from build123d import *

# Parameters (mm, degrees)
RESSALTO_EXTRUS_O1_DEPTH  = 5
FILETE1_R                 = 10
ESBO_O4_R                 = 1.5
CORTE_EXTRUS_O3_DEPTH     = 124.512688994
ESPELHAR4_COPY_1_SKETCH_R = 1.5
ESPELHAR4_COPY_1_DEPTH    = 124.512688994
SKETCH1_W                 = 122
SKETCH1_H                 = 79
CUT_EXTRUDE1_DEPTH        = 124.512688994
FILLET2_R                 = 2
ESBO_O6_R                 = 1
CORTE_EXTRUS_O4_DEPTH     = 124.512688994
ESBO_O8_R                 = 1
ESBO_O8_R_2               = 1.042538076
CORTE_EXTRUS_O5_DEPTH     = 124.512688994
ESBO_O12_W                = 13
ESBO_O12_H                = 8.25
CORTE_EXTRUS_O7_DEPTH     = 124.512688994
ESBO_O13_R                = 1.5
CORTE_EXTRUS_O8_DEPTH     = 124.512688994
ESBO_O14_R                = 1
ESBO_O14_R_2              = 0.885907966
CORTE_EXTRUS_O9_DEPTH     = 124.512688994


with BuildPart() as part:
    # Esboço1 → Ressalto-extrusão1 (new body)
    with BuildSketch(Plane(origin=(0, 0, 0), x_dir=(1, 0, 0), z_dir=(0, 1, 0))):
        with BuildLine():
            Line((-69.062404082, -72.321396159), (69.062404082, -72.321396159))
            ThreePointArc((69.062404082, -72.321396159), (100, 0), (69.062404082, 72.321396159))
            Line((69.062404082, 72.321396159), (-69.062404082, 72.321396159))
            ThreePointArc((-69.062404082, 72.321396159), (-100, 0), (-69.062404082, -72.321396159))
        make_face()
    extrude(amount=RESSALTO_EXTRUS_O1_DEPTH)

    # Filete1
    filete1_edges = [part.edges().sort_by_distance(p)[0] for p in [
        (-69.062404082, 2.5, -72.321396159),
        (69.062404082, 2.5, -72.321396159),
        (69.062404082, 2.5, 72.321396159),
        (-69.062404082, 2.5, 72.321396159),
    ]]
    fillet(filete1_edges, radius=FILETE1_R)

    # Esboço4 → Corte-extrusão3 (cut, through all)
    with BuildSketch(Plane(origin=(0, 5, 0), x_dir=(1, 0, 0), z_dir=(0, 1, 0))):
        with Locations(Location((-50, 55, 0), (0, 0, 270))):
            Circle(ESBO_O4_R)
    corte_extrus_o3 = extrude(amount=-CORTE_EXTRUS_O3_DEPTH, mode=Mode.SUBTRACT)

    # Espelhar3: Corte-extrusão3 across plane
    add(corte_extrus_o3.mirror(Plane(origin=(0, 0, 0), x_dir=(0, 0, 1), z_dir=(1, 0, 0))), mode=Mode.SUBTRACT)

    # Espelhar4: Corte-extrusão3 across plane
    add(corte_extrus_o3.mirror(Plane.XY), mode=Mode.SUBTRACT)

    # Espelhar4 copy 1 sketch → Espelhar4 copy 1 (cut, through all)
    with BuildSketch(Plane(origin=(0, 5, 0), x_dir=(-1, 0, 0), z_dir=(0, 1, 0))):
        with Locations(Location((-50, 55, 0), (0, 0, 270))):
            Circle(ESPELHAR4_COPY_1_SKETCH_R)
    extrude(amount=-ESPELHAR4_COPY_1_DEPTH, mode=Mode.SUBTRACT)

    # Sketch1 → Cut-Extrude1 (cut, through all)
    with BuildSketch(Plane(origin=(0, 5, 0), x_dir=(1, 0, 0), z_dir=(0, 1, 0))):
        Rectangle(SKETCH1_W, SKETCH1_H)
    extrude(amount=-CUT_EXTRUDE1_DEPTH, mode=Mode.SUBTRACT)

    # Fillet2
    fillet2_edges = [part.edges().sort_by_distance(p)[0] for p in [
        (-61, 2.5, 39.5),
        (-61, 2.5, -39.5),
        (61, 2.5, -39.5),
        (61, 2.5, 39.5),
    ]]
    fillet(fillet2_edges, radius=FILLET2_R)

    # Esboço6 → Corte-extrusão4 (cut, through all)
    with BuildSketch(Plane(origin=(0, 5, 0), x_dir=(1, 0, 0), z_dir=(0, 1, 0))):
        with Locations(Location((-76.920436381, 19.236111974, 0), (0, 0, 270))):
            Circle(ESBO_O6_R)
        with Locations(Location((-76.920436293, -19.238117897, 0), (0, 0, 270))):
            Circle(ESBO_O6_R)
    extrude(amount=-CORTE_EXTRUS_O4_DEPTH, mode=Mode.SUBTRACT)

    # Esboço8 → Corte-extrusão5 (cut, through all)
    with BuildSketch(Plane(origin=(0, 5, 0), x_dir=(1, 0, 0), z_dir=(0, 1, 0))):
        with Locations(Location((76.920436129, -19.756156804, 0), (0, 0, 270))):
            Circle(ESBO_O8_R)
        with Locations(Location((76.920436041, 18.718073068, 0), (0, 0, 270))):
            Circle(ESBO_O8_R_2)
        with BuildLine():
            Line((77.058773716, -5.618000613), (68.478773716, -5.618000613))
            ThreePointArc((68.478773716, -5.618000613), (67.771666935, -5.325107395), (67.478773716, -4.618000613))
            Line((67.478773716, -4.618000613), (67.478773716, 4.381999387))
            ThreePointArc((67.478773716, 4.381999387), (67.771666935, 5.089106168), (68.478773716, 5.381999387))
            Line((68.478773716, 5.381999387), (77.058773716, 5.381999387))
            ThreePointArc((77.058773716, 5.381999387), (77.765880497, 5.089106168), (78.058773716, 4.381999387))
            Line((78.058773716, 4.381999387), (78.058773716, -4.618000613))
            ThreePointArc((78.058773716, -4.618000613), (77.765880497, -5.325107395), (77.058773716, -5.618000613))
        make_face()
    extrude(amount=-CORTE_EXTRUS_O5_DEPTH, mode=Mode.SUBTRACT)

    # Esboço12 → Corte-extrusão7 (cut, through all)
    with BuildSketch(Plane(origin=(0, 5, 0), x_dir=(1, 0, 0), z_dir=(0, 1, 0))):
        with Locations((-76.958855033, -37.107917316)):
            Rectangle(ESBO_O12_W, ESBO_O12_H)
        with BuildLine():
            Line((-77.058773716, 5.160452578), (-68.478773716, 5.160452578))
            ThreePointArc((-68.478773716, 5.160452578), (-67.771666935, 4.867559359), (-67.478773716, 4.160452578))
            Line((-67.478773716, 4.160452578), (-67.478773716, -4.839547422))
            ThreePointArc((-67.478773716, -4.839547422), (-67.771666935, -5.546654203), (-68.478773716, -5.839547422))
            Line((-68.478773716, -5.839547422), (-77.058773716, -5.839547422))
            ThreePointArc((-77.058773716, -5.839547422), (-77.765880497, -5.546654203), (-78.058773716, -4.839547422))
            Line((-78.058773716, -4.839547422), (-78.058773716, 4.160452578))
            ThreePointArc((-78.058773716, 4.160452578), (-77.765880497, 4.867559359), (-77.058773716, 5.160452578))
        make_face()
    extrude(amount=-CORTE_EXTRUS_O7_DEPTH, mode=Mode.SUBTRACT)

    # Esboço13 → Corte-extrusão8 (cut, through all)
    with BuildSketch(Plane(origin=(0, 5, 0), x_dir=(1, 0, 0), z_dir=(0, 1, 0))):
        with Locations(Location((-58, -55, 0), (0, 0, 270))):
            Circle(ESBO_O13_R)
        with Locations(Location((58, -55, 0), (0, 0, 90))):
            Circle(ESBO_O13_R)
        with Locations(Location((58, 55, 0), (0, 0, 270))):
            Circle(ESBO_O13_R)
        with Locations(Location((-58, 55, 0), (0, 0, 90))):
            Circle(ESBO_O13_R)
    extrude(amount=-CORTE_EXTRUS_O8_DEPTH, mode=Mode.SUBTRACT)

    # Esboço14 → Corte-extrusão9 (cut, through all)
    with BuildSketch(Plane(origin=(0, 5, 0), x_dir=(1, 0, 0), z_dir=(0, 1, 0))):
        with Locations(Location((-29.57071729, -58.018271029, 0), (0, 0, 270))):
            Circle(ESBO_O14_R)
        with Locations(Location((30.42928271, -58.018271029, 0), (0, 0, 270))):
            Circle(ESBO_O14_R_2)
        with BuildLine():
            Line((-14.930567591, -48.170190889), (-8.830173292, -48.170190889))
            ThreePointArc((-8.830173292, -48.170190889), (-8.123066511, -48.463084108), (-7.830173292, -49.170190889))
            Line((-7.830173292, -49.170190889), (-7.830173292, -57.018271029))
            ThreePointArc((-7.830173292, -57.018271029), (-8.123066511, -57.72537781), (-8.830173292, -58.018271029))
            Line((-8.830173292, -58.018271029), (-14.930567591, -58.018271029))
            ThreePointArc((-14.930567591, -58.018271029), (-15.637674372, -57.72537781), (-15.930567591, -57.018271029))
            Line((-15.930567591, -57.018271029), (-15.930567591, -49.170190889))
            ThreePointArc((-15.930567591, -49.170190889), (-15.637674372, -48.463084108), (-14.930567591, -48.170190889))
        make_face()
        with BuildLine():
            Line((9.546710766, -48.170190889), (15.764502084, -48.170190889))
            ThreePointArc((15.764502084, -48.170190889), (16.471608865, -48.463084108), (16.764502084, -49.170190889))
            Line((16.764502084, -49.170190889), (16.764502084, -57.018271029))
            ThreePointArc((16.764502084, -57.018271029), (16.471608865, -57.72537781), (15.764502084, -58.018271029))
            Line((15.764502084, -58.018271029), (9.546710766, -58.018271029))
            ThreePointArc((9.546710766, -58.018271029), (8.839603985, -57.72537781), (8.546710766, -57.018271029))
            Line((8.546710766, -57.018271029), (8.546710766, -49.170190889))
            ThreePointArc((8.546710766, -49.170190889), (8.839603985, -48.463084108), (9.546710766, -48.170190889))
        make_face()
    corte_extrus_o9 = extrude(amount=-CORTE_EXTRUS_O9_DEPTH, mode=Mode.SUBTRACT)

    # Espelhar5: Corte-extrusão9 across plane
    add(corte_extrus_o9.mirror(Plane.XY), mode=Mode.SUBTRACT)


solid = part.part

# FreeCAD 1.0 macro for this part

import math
import FreeCAD as App
import Part
import Sketcher
Q = App.Units.Quantity


def edges_at(feature, points):
    """Names of the edges that pass closest to the given points."""
    edges = feature.Shape.Edges
    near = lambda p: min(range(len(edges)), key=lambda i: edges[i].distToShape(Part.Vertex(*p))[0])
    return sorted({f"Edge{near(p) + 1}" for p in points})

doc = App.newDocument("Part")
body = doc.addObject("PartDesign::Body", "Body")

# Sketch on XZ plane
sketch1 = doc.addObject("Sketcher::SketchObject", "Sketch")
body.addObject(sketch1)
sketch1.AttachmentSupport = (doc.XZ_Plane, [""])
sketch1.MapMode = "FlatFace"
sketch1.addGeometry([
    Part.LineSegment(App.Vector(-69, 72, 0), App.Vector(69, 72, 0)),
    Part.ArcOfCircle(Part.Circle(App.Vector(0, 0, 0), App.Vector(0, 0, 1), 100), math.radians(-46), math.radians(46)),
    Part.LineSegment(App.Vector(69, -72, 0), App.Vector(-69, -72, 0)),
    Part.ArcOfCircle(Part.Circle(App.Vector(0, 0, 0), App.Vector(0, 0, 1), 100), math.radians(134), math.radians(226)),
], False)
sketch1.addConstraint([
    Sketcher.Constraint("Coincident", 0, 2, 1, 2),
    Sketcher.Constraint("Coincident", 1, 1, 2, 1),
    Sketcher.Constraint("Coincident", 2, 2, 3, 2),
    Sketcher.Constraint("Coincident", 3, 1, 0, 1),
    Sketcher.Constraint("Horizontal", 0),
    Sketcher.Constraint("Horizontal", 2),
    Sketcher.Constraint("Coincident", 1, 3, -1, 1),
    Sketcher.Constraint("Coincident", 3, 3, -1, 1),
    Sketcher.Constraint("Equal", 1, 3),
    Sketcher.Constraint("Vertical", 0, 2, 1, 1),
    Sketcher.Constraint("Radius", 1, Q("100 mm")),
    Sketcher.Constraint("DistanceX", 0, 1, 0, 2, Q("138.124808 mm")),
])
pad1 = doc.addObject("PartDesign::Pad", "Pad")
body.addObject(pad1)
pad1.Profile = sketch1
pad1.Length = 5
pad1.Reversed = True
doc.recompute()

fillet = doc.addObject("PartDesign::Fillet", "Fillet")
body.addObject(fillet)
fillet.Base = (pad1, edges_at(pad1, [
    (-69.062, 2.5, -72.321),
    (69.062, 2.5, -72.321),
    (69.062, 2.5, 72.321),
    (-69.062, 2.5, 72.321),
]))
fillet.Radius = 10

# Sketch on XZ plane
sketch2 = doc.addObject("Sketcher::SketchObject", "Sketch001")
body.addObject(sketch2)
sketch2.AttachmentSupport = (doc.XZ_Plane, [""])
sketch2.MapMode = "FlatFace"
sketch2.AttachmentOffset = App.Placement(App.Vector(0, 0, -5), App.Rotation())
sketch2.addGeometry(Part.Circle(App.Vector(-50, -55, 0), App.Vector(0, 0, 1), 1.5), False)
sketch2.addConstraint([
    Sketcher.Constraint("Diameter", 0, Q("3 mm")),
    Sketcher.Constraint("DistanceX", 0, 3, -1, 1, Q("50 mm")),
    Sketcher.Constraint("DistanceY", 0, 3, -1, 1, Q("55 mm")),
])
pocket1 = doc.addObject("PartDesign::Pocket", "Pocket")
body.addObject(pocket1)
pocket1.Profile = sketch2
pocket1.Type = "ThroughAll"
pocket1.Reversed = True
doc.recompute()

mirrored = doc.addObject("PartDesign::Mirrored", "Mirrored")
body.addObject(mirrored)
mirrored.Originals = [pocket1]
mirrored.MirrorPlane = (doc.YZ_Plane, [""])
body.Tip = mirrored
doc.recompute()

mirrored2 = doc.addObject("PartDesign::Mirrored", "Mirrored001")
body.addObject(mirrored2)
mirrored2.Originals = [pocket1]
mirrored2.MirrorPlane = (doc.XY_Plane, [""])
body.Tip = mirrored2

# Sketch on XZ plane
sketch3 = doc.addObject("Sketcher::SketchObject", "Sketch002")
body.addObject(sketch3)
sketch3.AttachmentSupport = (doc.XZ_Plane, [""])
sketch3.MapMode = "FlatFace"
sketch3.AttachmentOffset = App.Placement(App.Vector(0, 0, -5), App.Rotation())
sketch3.addGeometry(Part.Circle(App.Vector(50, 55, 0), App.Vector(0, 0, 1), 1.5), False)
sketch3.addConstraint([
    Sketcher.Constraint("Diameter", 0, Q("3 mm")),
    Sketcher.Constraint("DistanceX", -1, 1, 0, 3, Q("50 mm")),
    Sketcher.Constraint("DistanceY", -1, 1, 0, 3, Q("55 mm")),
])
pocket2 = doc.addObject("PartDesign::Pocket", "Pocket001")
body.addObject(pocket2)
pocket2.Profile = sketch3
pocket2.Type = "ThroughAll"
pocket2.Reversed = True

# Sketch on XZ plane
sketch4 = doc.addObject("Sketcher::SketchObject", "Sketch003")
body.addObject(sketch4)
sketch4.AttachmentSupport = (doc.XZ_Plane, [""])
sketch4.MapMode = "FlatFace"
sketch4.AttachmentOffset = App.Placement(App.Vector(0, 0, -5), App.Rotation())
sketch4.addGeometry([
    Part.LineSegment(App.Vector(-61, -40, 0), App.Vector(-61, 40, 0)),
    Part.LineSegment(App.Vector(-61, 40, 0), App.Vector(61, 40, 0)),
    Part.LineSegment(App.Vector(61, 40, 0), App.Vector(61, -40, 0)),
    Part.LineSegment(App.Vector(61, -40, 0), App.Vector(-61, -40, 0)),
], False)
sketch4.addConstraint([
    Sketcher.Constraint("Coincident", 0, 2, 1, 1),
    Sketcher.Constraint("Coincident", 1, 2, 2, 1),
    Sketcher.Constraint("Coincident", 2, 2, 3, 1),
    Sketcher.Constraint("Coincident", 3, 2, 0, 1),
    Sketcher.Constraint("Vertical", 0),
    Sketcher.Constraint("Horizontal", 1),
    Sketcher.Constraint("Vertical", 2),
    Sketcher.Constraint("Horizontal", 3),
    Sketcher.Constraint("Symmetric", 0, 2, 2, 2, -1, 1),
    Sketcher.Constraint("DistanceX", 1, 1, 1, 2, Q("122 mm")),
    Sketcher.Constraint("DistanceY", 0, 1, 0, 2, Q("79 mm")),
])
pocket3 = doc.addObject("PartDesign::Pocket", "Pocket002")
body.addObject(pocket3)
pocket3.Profile = sketch4
pocket3.Type = "ThroughAll"
pocket3.Reversed = True
doc.recompute()

fillet2 = doc.addObject("PartDesign::Fillet", "Fillet001")
body.addObject(fillet2)
fillet2.Base = (pocket3, edges_at(pocket3, [
    (-61, 2.5, 39.5),
    (-61, 2.5, -39.5),
    (61, 2.5, -39.5),
    (61, 2.5, 39.5),
]))
fillet2.Radius = 2

# Sketch on XZ plane
sketch5 = doc.addObject("Sketcher::SketchObject", "Sketch004")
body.addObject(sketch5)
sketch5.AttachmentSupport = (doc.XZ_Plane, [""])
sketch5.MapMode = "FlatFace"
sketch5.AttachmentOffset = App.Placement(App.Vector(0, 0, -5), App.Rotation())
sketch5.addGeometry([
    Part.Circle(App.Vector(-76.9, -19.2, 0), App.Vector(0, 0, 1), 1),
    Part.Circle(App.Vector(-76.9, 19.2, 0), App.Vector(0, 0, 1), 1),
], False)
sketch5.addConstraint([
    Sketcher.Constraint("Equal", 0, 1),
    Sketcher.Constraint("Vertical", 0, 3, 1, 3),
    Sketcher.Constraint("Diameter", 0, Q("2 mm")),
    Sketcher.Constraint("DistanceY", 0, 3, -1, 1, Q("19.236112 mm")),
    Sketcher.Constraint("DistanceY", 0, 3, 1, 3, Q("38.47423 mm")),
    Sketcher.Constraint("DistanceX", 0, 3, -1, 1, Q("76.920436 mm")),
])
pocket4 = doc.addObject("PartDesign::Pocket", "Pocket003")
body.addObject(pocket4)
pocket4.Profile = sketch5
pocket4.Type = "ThroughAll"
pocket4.Reversed = True

# Sketch on XZ plane
sketch6 = doc.addObject("Sketcher::SketchObject", "Sketch005")
body.addObject(sketch6)
sketch6.AttachmentSupport = (doc.XZ_Plane, [""])
sketch6.MapMode = "FlatFace"
sketch6.AttachmentOffset = App.Placement(App.Vector(0, 0, -5), App.Rotation())
sketch6.addGeometry([
    Part.Circle(App.Vector(76.9, 19.8, 0), App.Vector(0, 0, 1), 1),  # 0
    Part.Circle(App.Vector(76.9, -18.7, 0), App.Vector(0, 0, 1), 1),  # 1
    Part.LineSegment(App.Vector(68.5, 5.6, 0), App.Vector(77.1, 5.6, 0)),  # 2
    Part.ArcOfCircle(Part.Circle(App.Vector(77.1, 4.6, 0), App.Vector(0, 0, 1), 1), math.radians(0), math.radians(90)),  # 3
    Part.LineSegment(App.Vector(78.1, 4.6, 0), App.Vector(78.1, -4.4, 0)),  # 4
    Part.ArcOfCircle(Part.Circle(App.Vector(77.1, -4.4, 0), App.Vector(0, 0, 1), 1), math.radians(-90), math.radians(0)),  # 5
    Part.LineSegment(App.Vector(77.1, -5.4, 0), App.Vector(68.5, -5.4, 0)),  # 6
    Part.ArcOfCircle(Part.Circle(App.Vector(68.5, -4.4, 0), App.Vector(0, 0, 1), 1), math.radians(-180), math.radians(-90)),  # 7
    Part.LineSegment(App.Vector(67.5, -4.4, 0), App.Vector(67.5, 4.6, 0)),  # 8
    Part.ArcOfCircle(Part.Circle(App.Vector(68.5, 4.6, 0), App.Vector(0, 0, 1), 1), math.radians(90), math.radians(180)),  # 9
], False)
sketch6.addConstraint([
    Sketcher.Constraint("Tangent", 2, 2, 3, 2),
    Sketcher.Constraint("Tangent", 3, 1, 4, 1),
    Sketcher.Constraint("Tangent", 4, 2, 5, 2),
    Sketcher.Constraint("Tangent", 5, 1, 6, 1),
    Sketcher.Constraint("Tangent", 6, 2, 7, 2),
    Sketcher.Constraint("Tangent", 7, 1, 8, 1),
    Sketcher.Constraint("Tangent", 8, 2, 9, 2),
    Sketcher.Constraint("Tangent", 9, 1, 2, 1),
    Sketcher.Constraint("Horizontal", 2),
    Sketcher.Constraint("Vertical", 4),
    Sketcher.Constraint("Horizontal", 6),
    Sketcher.Constraint("Vertical", 8),
    Sketcher.Constraint("Equal", 0, 3),
    Sketcher.Constraint("Equal", 3, 5),
    Sketcher.Constraint("Equal", 5, 7),
    Sketcher.Constraint("Equal", 7, 9),
    Sketcher.Constraint("Vertical", 0, 3, 1, 3),
    Sketcher.Constraint("Diameter", 0, Q("2 mm")),
    Sketcher.Constraint("DistanceY", 4, 2, 4, 1, Q("9 mm")),
    Sketcher.Constraint("DistanceX", 2, 1, 2, 2, Q("8.58 mm")),
    Sketcher.Constraint("Diameter", 1, Q("2.085076 mm")),
    Sketcher.Constraint("DistanceY", -1, 1, 3, 3, Q("4.618001 mm")),
    Sketcher.Constraint("DistanceY", 1, 3, 0, 3, Q("38.47423 mm")),
    Sketcher.Constraint("DistanceX", -1, 1, 0, 3, Q("76.920436 mm")),
    Sketcher.Constraint("DistanceY", -1, 1, 0, 3, Q("19.756157 mm")),
    Sketcher.Constraint("DistanceX", -1, 1, 3, 3, Q("77.058774 mm")),
])
pocket5 = doc.addObject("PartDesign::Pocket", "Pocket004")
body.addObject(pocket5)
pocket5.Profile = sketch6
pocket5.Type = "ThroughAll"
pocket5.Reversed = True

# Sketch on XZ plane
sketch7 = doc.addObject("Sketcher::SketchObject", "Sketch006")
body.addObject(sketch7)
sketch7.AttachmentSupport = (doc.XZ_Plane, [""])
sketch7.MapMode = "FlatFace"
sketch7.AttachmentOffset = App.Placement(App.Vector(0, 0, -5), App.Rotation())
sketch7.addGeometry([
    Part.LineSegment(App.Vector(-83.5, 33, 0), App.Vector(-83.5, 41.2, 0)),  # 0
    Part.LineSegment(App.Vector(-83.5, 41.2, 0), App.Vector(-70.5, 41.2, 0)),  # 1
    Part.LineSegment(App.Vector(-70.5, 41.2, 0), App.Vector(-70.5, 33, 0)),  # 2
    Part.LineSegment(App.Vector(-70.5, 33, 0), App.Vector(-83.5, 33, 0)),  # 3
    Part.LineSegment(App.Vector(-68.5, -5.2, 0), App.Vector(-77.1, -5.2, 0)),  # 4
    Part.ArcOfCircle(Part.Circle(App.Vector(-77.1, -4.2, 0), App.Vector(0, 0, 1), 1), math.radians(-180), math.radians(-90)),  # 5
    Part.LineSegment(App.Vector(-78.1, -4.2, 0), App.Vector(-78.1, 4.8, 0)),  # 6
    Part.ArcOfCircle(Part.Circle(App.Vector(-77.1, 4.8, 0), App.Vector(0, 0, 1), 1), math.radians(90), math.radians(180)),  # 7
    Part.LineSegment(App.Vector(-77.1, 5.8, 0), App.Vector(-68.5, 5.8, 0)),  # 8
    Part.ArcOfCircle(Part.Circle(App.Vector(-68.5, 4.8, 0), App.Vector(0, 0, 1), 1), math.radians(0), math.radians(90)),  # 9
    Part.LineSegment(App.Vector(-67.5, 4.8, 0), App.Vector(-67.5, -4.2, 0)),  # 10
    Part.ArcOfCircle(Part.Circle(App.Vector(-68.5, -4.2, 0), App.Vector(0, 0, 1), 1), math.radians(-90), math.radians(0)),  # 11
], False)
sketch7.addConstraint([
    Sketcher.Constraint("Coincident", 0, 2, 1, 1),
    Sketcher.Constraint("Coincident", 1, 2, 2, 1),
    Sketcher.Constraint("Coincident", 2, 2, 3, 1),
    Sketcher.Constraint("Coincident", 3, 2, 0, 1),
    Sketcher.Constraint("Tangent", 4, 2, 5, 2),
    Sketcher.Constraint("Tangent", 5, 1, 6, 1),
    Sketcher.Constraint("Tangent", 6, 2, 7, 2),
    Sketcher.Constraint("Tangent", 7, 1, 8, 1),
    Sketcher.Constraint("Tangent", 8, 2, 9, 2),
    Sketcher.Constraint("Tangent", 9, 1, 10, 1),
    Sketcher.Constraint("Tangent", 10, 2, 11, 2),
    Sketcher.Constraint("Tangent", 11, 1, 4, 1),
    Sketcher.Constraint("Vertical", 0),
    Sketcher.Constraint("Horizontal", 1),
    Sketcher.Constraint("Vertical", 2),
    Sketcher.Constraint("Horizontal", 3),
    Sketcher.Constraint("Horizontal", 4),
    Sketcher.Constraint("Vertical", 6),
    Sketcher.Constraint("Horizontal", 8),
    Sketcher.Constraint("Vertical", 10),
    Sketcher.Constraint("Equal", 5, 7),
    Sketcher.Constraint("Equal", 7, 9),
    Sketcher.Constraint("Equal", 9, 11),
    Sketcher.Constraint("Radius", 5, Q("1 mm")),
    Sketcher.Constraint("DistanceX", 1, 1, 1, 2, Q("13 mm")),
    Sketcher.Constraint("DistanceY", 6, 1, 6, 2, Q("9 mm")),
    Sketcher.Constraint("DistanceX", 4, 2, 4, 1, Q("8.58 mm")),
    Sketcher.Constraint("DistanceY", 0, 1, 0, 2, Q("8.25 mm")),
    Sketcher.Constraint("DistanceX", 0, 2, 7, 3, Q("6.400081 mm")),
    Sketcher.Constraint("DistanceY", 7, 3, 0, 2, Q("36.39337 mm")),
    Sketcher.Constraint("DistanceX", 5, 3, -1, 1, Q("77.058774 mm")),
    Sketcher.Constraint("DistanceY", 5, 3, -1, 1, Q("4.160453 mm")),
])
pocket6 = doc.addObject("PartDesign::Pocket", "Pocket005")
body.addObject(pocket6)
pocket6.Profile = sketch7
pocket6.Type = "ThroughAll"
pocket6.Reversed = True

# Sketch on XZ plane
sketch8 = doc.addObject("Sketcher::SketchObject", "Sketch007")
body.addObject(sketch8)
sketch8.AttachmentSupport = (doc.XZ_Plane, [""])
sketch8.MapMode = "FlatFace"
sketch8.AttachmentOffset = App.Placement(App.Vector(0, 0, -5), App.Rotation())
sketch8.addGeometry([
    Part.Circle(App.Vector(-58, 55, 0), App.Vector(0, 0, 1), 1.5),
    Part.Circle(App.Vector(58, 55, 0), App.Vector(0, 0, 1), 1.5),
    Part.Circle(App.Vector(58, -55, 0), App.Vector(0, 0, 1), 1.5),
    Part.Circle(App.Vector(-58, -55, 0), App.Vector(0, 0, 1), 1.5),
], False)
sketch8.addConstraint([
    Sketcher.Constraint("Equal", 0, 1),
    Sketcher.Constraint("Equal", 1, 2),
    Sketcher.Constraint("Equal", 2, 3),
    Sketcher.Constraint("Symmetric", 0, 3, 2, 3, -1, 1),
    Sketcher.Constraint("Symmetric", 1, 3, 3, 3, -1, 1),
    Sketcher.Constraint("Symmetric", 0, 3, 1, 3, -2),
    Sketcher.Constraint("Diameter", 0, Q("3 mm")),
    Sketcher.Constraint("DistanceX", 0, 3, -1, 1, Q("58 mm")),
    Sketcher.Constraint("DistanceY", -1, 1, 0, 3, Q("55 mm")),
])
pocket7 = doc.addObject("PartDesign::Pocket", "Pocket006")
body.addObject(pocket7)
pocket7.Profile = sketch8
pocket7.Type = "ThroughAll"
pocket7.Reversed = True

# Sketch on XZ plane
sketch9 = doc.addObject("Sketcher::SketchObject", "Sketch008")
body.addObject(sketch9)
sketch9.AttachmentSupport = (doc.XZ_Plane, [""])
sketch9.MapMode = "FlatFace"
sketch9.AttachmentOffset = App.Placement(App.Vector(0, 0, -5), App.Rotation())
sketch9.addGeometry([
    Part.Circle(App.Vector(-29.6, 58, 0), App.Vector(0, 0, 1), 1),  # 0
    Part.Circle(App.Vector(30.4, 58, 0), App.Vector(0, 0, 1), 0.9),  # 1
    Part.LineSegment(App.Vector(-8.8, 48.2, 0), App.Vector(-14.9, 48.2, 0)),  # 2
    Part.ArcOfCircle(Part.Circle(App.Vector(-14.9, 49.2, 0), App.Vector(0, 0, 1), 1), math.radians(-180), math.radians(-90)),  # 3
    Part.LineSegment(App.Vector(-15.9, 49.2, 0), App.Vector(-15.9, 57, 0)),  # 4
    Part.ArcOfCircle(Part.Circle(App.Vector(-14.9, 57, 0), App.Vector(0, 0, 1), 1), math.radians(90), math.radians(180)),  # 5
    Part.LineSegment(App.Vector(-14.9, 58, 0), App.Vector(-8.8, 58, 0)),  # 6
    Part.ArcOfCircle(Part.Circle(App.Vector(-8.8, 57, 0), App.Vector(0, 0, 1), 1), math.radians(0), math.radians(90)),  # 7
    Part.LineSegment(App.Vector(-7.8, 57, 0), App.Vector(-7.8, 49.2, 0)),  # 8
    Part.ArcOfCircle(Part.Circle(App.Vector(-8.8, 49.2, 0), App.Vector(0, 0, 1), 1), math.radians(-90), math.radians(0)),  # 9
    Part.LineSegment(App.Vector(15.8, 48.2, 0), App.Vector(9.5, 48.2, 0)),  # 10
    Part.ArcOfCircle(Part.Circle(App.Vector(9.5, 49.2, 0), App.Vector(0, 0, 1), 1), math.radians(-180), math.radians(-90)),  # 11
    Part.LineSegment(App.Vector(8.5, 49.2, 0), App.Vector(8.5, 57, 0)),  # 12
    Part.ArcOfCircle(Part.Circle(App.Vector(9.5, 57, 0), App.Vector(0, 0, 1), 1), math.radians(90), math.radians(180)),  # 13
    Part.LineSegment(App.Vector(9.5, 58, 0), App.Vector(15.8, 58, 0)),  # 14
    Part.ArcOfCircle(Part.Circle(App.Vector(15.8, 57, 0), App.Vector(0, 0, 1), 1), math.radians(0), math.radians(90)),  # 15
    Part.LineSegment(App.Vector(16.8, 57, 0), App.Vector(16.8, 49.2, 0)),  # 16
    Part.ArcOfCircle(Part.Circle(App.Vector(15.8, 49.2, 0), App.Vector(0, 0, 1), 1), math.radians(-90), math.radians(0)),  # 17
], False)
sketch9.addConstraint([
    Sketcher.Constraint("Tangent", 2, 2, 3, 2),
    Sketcher.Constraint("Tangent", 3, 1, 4, 1),
    Sketcher.Constraint("Tangent", 4, 2, 5, 2),
    Sketcher.Constraint("Tangent", 5, 1, 6, 1),
    Sketcher.Constraint("Tangent", 6, 2, 7, 2),
    Sketcher.Constraint("Tangent", 7, 1, 8, 1),
    Sketcher.Constraint("Tangent", 8, 2, 9, 2),
    Sketcher.Constraint("Tangent", 9, 1, 2, 1),
    Sketcher.Constraint("Tangent", 10, 2, 11, 2),
    Sketcher.Constraint("Tangent", 11, 1, 12, 1),
    Sketcher.Constraint("Tangent", 12, 2, 13, 2),
    Sketcher.Constraint("Tangent", 13, 1, 14, 1),
    Sketcher.Constraint("Tangent", 14, 2, 15, 2),
    Sketcher.Constraint("Tangent", 15, 1, 16, 1),
    Sketcher.Constraint("Tangent", 16, 2, 17, 2),
    Sketcher.Constraint("Tangent", 17, 1, 10, 1),
    Sketcher.Constraint("Horizontal", 2),
    Sketcher.Constraint("Vertical", 4),
    Sketcher.Constraint("Horizontal", 6),
    Sketcher.Constraint("Vertical", 8),
    Sketcher.Constraint("Horizontal", 10),
    Sketcher.Constraint("Vertical", 12),
    Sketcher.Constraint("Horizontal", 14),
    Sketcher.Constraint("Vertical", 16),
    Sketcher.Constraint("Equal", 0, 3),
    Sketcher.Constraint("Equal", 3, 5),
    Sketcher.Constraint("Equal", 5, 7),
    Sketcher.Constraint("Equal", 7, 9),
    Sketcher.Constraint("Equal", 9, 11),
    Sketcher.Constraint("Equal", 11, 13),
    Sketcher.Constraint("Equal", 13, 15),
    Sketcher.Constraint("Equal", 15, 17),
    Sketcher.Constraint("Horizontal", 0, 3, 1, 3),
    Sketcher.Constraint("Horizontal", 9, 3, 11, 3),
    Sketcher.Constraint("Horizontal", 7, 3, 13, 3),
    Sketcher.Constraint("Horizontal", 1, 3, 5, 1),
    Sketcher.Constraint("Diameter", 0, Q("2 mm")),
    Sketcher.Constraint("DistanceX", 0, 3, 1, 3, Q("60 mm")),
    Sketcher.Constraint("Diameter", 1, Q("1.771816 mm")),
    Sketcher.Constraint("DistanceX", 10, 2, 10, 1, Q("6.217791 mm")),
    Sketcher.Constraint("DistanceY", 4, 1, 4, 2, Q("7.84808 mm")),
    Sketcher.Constraint("DistanceX", 2, 2, 2, 1, Q("6.100394 mm")),
    Sketcher.Constraint("DistanceY", -1, 1, 0, 3, Q("58.018271 mm")),
    Sketcher.Constraint("DistanceX", -1, 1, 11, 3, Q("9.546711 mm")),
    Sketcher.Constraint("DistanceX", 0, 3, 3, 3, Q("14.64015 mm")),
    Sketcher.Constraint("DistanceX", 11, 3, 1, 3, Q("20.882572 mm")),
])
pocket8 = doc.addObject("PartDesign::Pocket", "Pocket007")
body.addObject(pocket8)
pocket8.Profile = sketch9
pocket8.Type = "ThroughAll"
pocket8.Reversed = True
doc.recompute()

mirrored3 = doc.addObject("PartDesign::Mirrored", "Mirrored002")
body.addObject(mirrored3)
mirrored3.Originals = [pocket8]
mirrored3.MirrorPlane = (doc.XY_Plane, [""])
body.Tip = mirrored3

doc.recompute()
